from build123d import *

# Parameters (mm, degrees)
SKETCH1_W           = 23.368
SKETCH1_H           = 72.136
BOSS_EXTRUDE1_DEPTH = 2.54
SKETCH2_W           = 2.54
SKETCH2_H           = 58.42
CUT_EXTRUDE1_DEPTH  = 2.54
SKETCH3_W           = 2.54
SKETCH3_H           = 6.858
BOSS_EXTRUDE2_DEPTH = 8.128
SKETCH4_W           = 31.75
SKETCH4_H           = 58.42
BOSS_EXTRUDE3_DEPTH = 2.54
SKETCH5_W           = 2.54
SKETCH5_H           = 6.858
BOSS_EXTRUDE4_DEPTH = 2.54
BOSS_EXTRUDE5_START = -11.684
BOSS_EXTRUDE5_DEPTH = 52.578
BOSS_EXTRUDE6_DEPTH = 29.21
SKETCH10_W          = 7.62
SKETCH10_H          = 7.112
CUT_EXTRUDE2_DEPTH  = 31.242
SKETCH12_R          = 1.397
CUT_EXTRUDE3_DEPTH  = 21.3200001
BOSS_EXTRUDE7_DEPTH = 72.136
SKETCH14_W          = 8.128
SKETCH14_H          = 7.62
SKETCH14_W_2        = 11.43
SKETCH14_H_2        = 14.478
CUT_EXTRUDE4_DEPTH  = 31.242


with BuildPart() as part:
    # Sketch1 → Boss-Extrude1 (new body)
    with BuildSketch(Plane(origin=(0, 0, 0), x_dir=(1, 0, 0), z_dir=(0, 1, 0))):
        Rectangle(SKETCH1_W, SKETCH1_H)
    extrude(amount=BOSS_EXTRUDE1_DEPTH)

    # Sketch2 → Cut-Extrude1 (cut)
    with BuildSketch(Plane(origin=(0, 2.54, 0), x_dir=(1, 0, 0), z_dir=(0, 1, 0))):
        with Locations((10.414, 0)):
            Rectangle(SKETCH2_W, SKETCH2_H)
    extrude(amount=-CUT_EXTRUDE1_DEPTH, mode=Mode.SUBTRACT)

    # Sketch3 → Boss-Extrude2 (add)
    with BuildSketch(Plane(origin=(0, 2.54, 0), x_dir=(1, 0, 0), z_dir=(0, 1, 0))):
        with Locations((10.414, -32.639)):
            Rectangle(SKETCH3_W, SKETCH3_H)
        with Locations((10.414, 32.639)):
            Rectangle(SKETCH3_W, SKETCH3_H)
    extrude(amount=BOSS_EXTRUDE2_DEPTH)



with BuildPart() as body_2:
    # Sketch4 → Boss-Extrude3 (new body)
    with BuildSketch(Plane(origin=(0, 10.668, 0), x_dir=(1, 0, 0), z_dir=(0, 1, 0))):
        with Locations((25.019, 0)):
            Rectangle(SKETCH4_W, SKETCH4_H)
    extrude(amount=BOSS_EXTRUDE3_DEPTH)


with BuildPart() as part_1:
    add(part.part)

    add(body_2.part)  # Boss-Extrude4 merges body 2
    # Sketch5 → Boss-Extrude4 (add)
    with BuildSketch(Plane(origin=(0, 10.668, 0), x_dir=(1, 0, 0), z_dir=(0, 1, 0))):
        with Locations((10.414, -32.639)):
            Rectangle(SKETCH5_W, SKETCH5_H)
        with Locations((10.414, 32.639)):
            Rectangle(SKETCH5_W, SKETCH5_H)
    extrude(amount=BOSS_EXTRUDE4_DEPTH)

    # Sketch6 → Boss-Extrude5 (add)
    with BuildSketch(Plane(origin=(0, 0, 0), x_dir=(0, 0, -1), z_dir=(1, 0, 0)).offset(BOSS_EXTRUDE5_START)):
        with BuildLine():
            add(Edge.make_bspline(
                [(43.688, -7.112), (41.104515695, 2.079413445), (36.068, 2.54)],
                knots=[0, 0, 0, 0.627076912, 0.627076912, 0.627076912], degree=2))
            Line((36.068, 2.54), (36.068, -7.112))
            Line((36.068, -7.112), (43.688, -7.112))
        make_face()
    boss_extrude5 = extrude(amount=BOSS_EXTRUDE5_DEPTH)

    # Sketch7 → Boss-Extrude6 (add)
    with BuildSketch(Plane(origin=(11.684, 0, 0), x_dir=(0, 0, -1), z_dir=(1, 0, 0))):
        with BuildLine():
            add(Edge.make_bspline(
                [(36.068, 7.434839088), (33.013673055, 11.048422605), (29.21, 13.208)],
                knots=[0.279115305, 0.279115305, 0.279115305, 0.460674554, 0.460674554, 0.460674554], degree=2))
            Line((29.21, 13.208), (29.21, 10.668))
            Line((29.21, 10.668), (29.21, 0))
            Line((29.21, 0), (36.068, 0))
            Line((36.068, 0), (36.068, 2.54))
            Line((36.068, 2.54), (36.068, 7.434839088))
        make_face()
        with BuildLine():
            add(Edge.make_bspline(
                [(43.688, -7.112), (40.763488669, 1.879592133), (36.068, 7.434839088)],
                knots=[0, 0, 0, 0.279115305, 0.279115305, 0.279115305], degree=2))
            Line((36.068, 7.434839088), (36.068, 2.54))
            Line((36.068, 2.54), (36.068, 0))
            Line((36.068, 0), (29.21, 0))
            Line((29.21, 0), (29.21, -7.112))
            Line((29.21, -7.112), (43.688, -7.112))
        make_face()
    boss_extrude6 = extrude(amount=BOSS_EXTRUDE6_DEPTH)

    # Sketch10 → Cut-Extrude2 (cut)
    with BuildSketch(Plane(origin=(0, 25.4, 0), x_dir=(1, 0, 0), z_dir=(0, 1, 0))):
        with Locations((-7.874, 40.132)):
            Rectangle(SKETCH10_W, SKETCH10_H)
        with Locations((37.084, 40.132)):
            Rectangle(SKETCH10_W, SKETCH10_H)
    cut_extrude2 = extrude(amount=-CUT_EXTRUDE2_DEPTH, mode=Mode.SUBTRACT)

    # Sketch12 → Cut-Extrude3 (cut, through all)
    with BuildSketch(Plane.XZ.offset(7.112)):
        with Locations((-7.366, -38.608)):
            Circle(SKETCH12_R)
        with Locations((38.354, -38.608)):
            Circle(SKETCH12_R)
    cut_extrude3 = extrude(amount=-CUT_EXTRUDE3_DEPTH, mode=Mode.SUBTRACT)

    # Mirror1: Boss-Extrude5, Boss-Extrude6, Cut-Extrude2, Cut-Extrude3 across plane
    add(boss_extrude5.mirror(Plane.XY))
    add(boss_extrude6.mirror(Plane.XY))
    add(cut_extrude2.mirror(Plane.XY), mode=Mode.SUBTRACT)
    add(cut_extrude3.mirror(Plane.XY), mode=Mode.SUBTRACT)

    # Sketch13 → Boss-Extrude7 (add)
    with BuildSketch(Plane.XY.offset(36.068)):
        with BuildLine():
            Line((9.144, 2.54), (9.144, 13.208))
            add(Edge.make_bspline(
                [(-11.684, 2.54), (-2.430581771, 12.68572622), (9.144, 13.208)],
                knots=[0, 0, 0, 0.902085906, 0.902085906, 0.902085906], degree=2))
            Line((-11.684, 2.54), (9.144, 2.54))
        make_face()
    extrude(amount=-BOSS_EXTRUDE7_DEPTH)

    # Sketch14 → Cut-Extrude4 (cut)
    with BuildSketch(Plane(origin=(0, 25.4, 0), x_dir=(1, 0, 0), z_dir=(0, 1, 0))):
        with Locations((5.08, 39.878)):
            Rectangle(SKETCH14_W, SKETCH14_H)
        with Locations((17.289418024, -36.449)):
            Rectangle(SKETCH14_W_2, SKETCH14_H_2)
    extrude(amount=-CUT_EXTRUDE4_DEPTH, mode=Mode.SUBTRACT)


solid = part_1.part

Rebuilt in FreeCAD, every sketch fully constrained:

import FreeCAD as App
import Part
import Sketcher
Q = App.Units.Quantity

doc = App.newDocument("Part")
params = doc.addObject("Spreadsheet::Sheet", "Params")
for row, (alias, value) in enumerate([
    ("sketch1_width", "0.92 in"),
    ("sketch1_height", "2.84 in"),
    ("pad1_length", "0.1 in"),
    ("sketch2_width", "0.1 in"),
    ("sketch2_height", "2.3 in"),
    ("pocket1_length", "0.1 in"),
    ("sketch3_width", "0.1 in"),
    ("sketch3_height", "0.27 in"),
    ("pad2_length", "0.32 in"),
    ("sketch4_height", "2.3 in"),
    ("sketch4_width", "1.25 in"),
    ("pad3_length", "0.1 in"),
    ("sketch5_width", "0.1 in"),
    ("sketch5_height", "0.27 in"),
    ("pad4_length", "0.1 in"),
    ("pad5_length", "2.07 in"),
    ("pad6_length", "1.15 in"),
    ("sketch8_width", "0.3 in"),
    ("sketch8_height", "0.28 in"),
    ("pocket2_length", "1.23 in"),
    ("sketch9_diameter", "0.11 in"),
    ("pad7_length", "2.84 in"),
    ("sketch11_height", "0.3 in"),
    ("sketch11_width", "0.32 in"),
    ("sketch11_width2", "0.45 in"),
    ("sketch11_height2", "0.57 in"),
    ("pocket4_length", "1.23 in"),
], start=1):
    params.set(f"A{row}", alias)
    params.set(f"B{row}", "=" + value)
    params.setAlias(f"B{row}", alias)

body = doc.addObject("PartDesign::Body", "Body")

sketch1 = body.newObject("Sketcher::SketchObject", "Sketch")
sketch1.AttachmentSupport = (doc.getObject("XZ_Plane"), [""])
sketch1.MapMode = "FlatFace"
sketch1.addGeometry(Part.LineSegment(App.Vector(-12, -36, 0), App.Vector(-12, 36, 0)), False)
sketch1.addGeometry(Part.LineSegment(App.Vector(-12, 36, 0), App.Vector(12, 36, 0)), False)
sketch1.addGeometry(Part.LineSegment(App.Vector(12, 36, 0), App.Vector(12, -36, 0)), False)
sketch1.addGeometry(Part.LineSegment(App.Vector(12, -36, 0), App.Vector(-12, -36, 0)), False)
sketch1.addConstraint(Sketcher.Constraint("Coincident", 0, 2, 1, 1))
sketch1.addConstraint(Sketcher.Constraint("Coincident", 1, 2, 2, 1))
sketch1.addConstraint(Sketcher.Constraint("Coincident", 2, 2, 3, 1))
sketch1.addConstraint(Sketcher.Constraint("Coincident", 3, 2, 0, 1))
sketch1.addConstraint(Sketcher.Constraint("Vertical", 0))
sketch1.addConstraint(Sketcher.Constraint("Horizontal", 1))
sketch1.addConstraint(Sketcher.Constraint("Vertical", 2))
sketch1.addConstraint(Sketcher.Constraint("Horizontal", 3))
sketch1.addConstraint(Sketcher.Constraint("Symmetric", 0, 2, 2, 2, -1, 1))
sketch1.addConstraint(Sketcher.Constraint("DistanceX", 1, 1, 1, 2, Q("0.92 in")))
sketch1.addConstraint(Sketcher.Constraint("DistanceY", 0, 1, 0, 2, Q("2.84 in")))
sketch1.setExpression("Constraints[9]", "Params.sketch1_width")
sketch1.setExpression("Constraints[10]", "Params.sketch1_height")
pad1 = body.newObject("PartDesign::Pad", "Pad")
pad1.Profile = sketch1
pad1.setExpression("Length", "Params.pad1_length")
pad1.Reversed = True

sketch2 = body.newObject("Sketcher::SketchObject", "Sketch001")
sketch2.AttachmentSupport = (doc.getObject("XZ_Plane"), [""])
sketch2.MapMode = "FlatFace"
sketch2.AttachmentOffset = App.Placement(App.Vector(0, 0, -0.1 * 25.4), App.Rotation())
sketch2.addGeometry(Part.LineSegment(App.Vector(9.1, -29.2, 0), App.Vector(9.1, 29.2, 0)), False)
sketch2.addGeometry(Part.LineSegment(App.Vector(9.1, 29.2, 0), App.Vector(11.7, 29.2, 0)), False)
sketch2.addGeometry(Part.LineSegment(App.Vector(11.7, 29.2, 0), App.Vector(11.7, -29.2, 0)), False)
sketch2.addGeometry(Part.LineSegment(App.Vector(11.7, -29.2, 0), App.Vector(9.1, -29.2, 0)), False)
sketch2.addConstraint(Sketcher.Constraint("Coincident", 0, 2, 1, 1))
sketch2.addConstraint(Sketcher.Constraint("Coincident", 1, 2, 2, 1))
sketch2.addConstraint(Sketcher.Constraint("Coincident", 2, 2, 3, 1))
sketch2.addConstraint(Sketcher.Constraint("Coincident", 3, 2, 0, 1))
sketch2.addConstraint(Sketcher.Constraint("Vertical", 0))
sketch2.addConstraint(Sketcher.Constraint("Horizontal", 1))
sketch2.addConstraint(Sketcher.Constraint("Vertical", 2))
sketch2.addConstraint(Sketcher.Constraint("Horizontal", 3))
sketch2.addConstraint(Sketcher.Constraint("DistanceX", 1, 1, 1, 2, Q("0.1 in")))
sketch2.addConstraint(Sketcher.Constraint("DistanceY", 0, 1, 0, 2, Q("2.3 in")))
sketch2.addConstraint(Sketcher.Constraint("DistanceX", -1, 1, 0, 2, Q("0.36 in")))
sketch2.addConstraint(Sketcher.Constraint("DistanceY", -1, 1, 0, 2, Q("1.15 in")))
sketch2.setExpression("Constraints[8]", "Params.sketch2_width")
sketch2.setExpression("Constraints[9]", "Params.sketch2_height")
pocket1 = body.newObject("PartDesign::Pocket", "Pocket")
pocket1.Profile = sketch2
pocket1.setExpression("Length", "Params.pocket1_length")
pocket1.Reversed = True

sketch3 = body.newObject("Sketcher::SketchObject", "Sketch002")
sketch3.AttachmentSupport = (doc.getObject("XZ_Plane"), [""])
sketch3.MapMode = "FlatFace"
sketch3.AttachmentOffset = App.Placement(App.Vector(0, 0, -0.1 * 25.4), App.Rotation())
sketch3.addGeometry(Part.LineSegment(App.Vector(9.1, 29.2, 0), App.Vector(9.1, 36.1, 0)), False)
sketch3.addGeometry(Part.LineSegment(App.Vector(9.1, 36.1, 0), App.Vector(11.7, 36.1, 0)), False)
sketch3.addGeometry(Part.LineSegment(App.Vector(11.7, 36.1, 0), App.Vector(11.7, 29.2, 0)), False)
sketch3.addGeometry(Part.LineSegment(App.Vector(11.7, 29.2, 0), App.Vector(9.1, 29.2, 0)), False)
sketch3.addGeometry(Part.LineSegment(App.Vector(9.1, -36.1, 0), App.Vector(9.1, -29.2, 0)), False)
sketch3.addGeometry(Part.LineSegment(App.Vector(9.1, -29.2, 0), App.Vector(11.7, -29.2, 0)), False)
sketch3.addGeometry(Part.LineSegment(App.Vector(11.7, -29.2, 0), App.Vector(11.7, -36.1, 0)), False)
sketch3.addGeometry(Part.LineSegment(App.Vector(11.7, -36.1, 0), App.Vector(9.1, -36.1, 0)), False)
sketch3.addConstraint(Sketcher.Constraint("Coincident", 0, 2, 1, 1))
sketch3.addConstraint(Sketcher.Constraint("Coincident", 1, 2, 2, 1))
sketch3.addConstraint(Sketcher.Constraint("Coincident", 2, 2, 3, 1))
sketch3.addConstraint(Sketcher.Constraint("Coincident", 3, 2, 0, 1))
sketch3.addConstraint(Sketcher.Constraint("Coincident", 4, 2, 5, 1))
sketch3.addConstraint(Sketcher.Constraint("Coincident", 5, 2, 6, 1))
sketch3.addConstraint(Sketcher.Constraint("Coincident", 6, 2, 7, 1))
sketch3.addConstraint(Sketcher.Constraint("Coincident", 7, 2, 4, 1))
sketch3.addConstraint(Sketcher.Constraint("Vertical", 0))
sketch3.addConstraint(Sketcher.Constraint("Horizontal", 1))
sketch3.addConstraint(Sketcher.Constraint("Vertical", 2))
sketch3.addConstraint(Sketcher.Constraint("Horizontal", 3))
sketch3.addConstraint(Sketcher.Constraint("Vertical", 4))
sketch3.addConstraint(Sketcher.Constraint("Horizontal", 5))
sketch3.addConstraint(Sketcher.Constraint("Vertical", 6))
sketch3.addConstraint(Sketcher.Constraint("Horizontal", 7))
sketch3.addConstraint(Sketcher.Constraint("Symmetric", 3, 2, 4, 2, -1))
sketch3.addConstraint(Sketcher.Constraint("Symmetric", 1, 2, 6, 2, -1))
sketch3.addConstraint(Sketcher.Constraint("DistanceX", 1, 1, 1, 2, Q("0.1 in")))
sketch3.addConstraint(Sketcher.Constraint("DistanceY", 0, 1, 0, 2, Q("0.27 in")))
sketch3.addConstraint(Sketcher.Constraint("DistanceY", 4, 2, 3, 2, Q("2.3 in")))
sketch3.addConstraint(Sketcher.Constraint("DistanceX", -1, 1, 0, 2, Q("0.36 in")))
sketch3.setExpression("Constraints[18]", "Params.sketch3_width")
sketch3.setExpression("Constraints[19]", "Params.sketch3_height")
pad2 = body.newObject("PartDesign::Pad", "Pad001")
pad2.Profile = sketch3
pad2.setExpression("Length", "Params.pad2_length")
pad2.Reversed = True
body2 = doc.addObject("PartDesign::Body", "Body001")

sketch4 = body2.newObject("Sketcher::SketchObject", "Sketch003")
sketch4.AttachmentSupport = (doc.getObject("XZ_Plane001"), [""])
sketch4.MapMode = "FlatFace"
sketch4.AttachmentOffset = App.Placement(App.Vector(0, 0, -0.42 * 25.4), App.Rotation())
sketch4.addGeometry(Part.LineSegment(App.Vector(9, -29, 0), App.Vector(9, 29, 0)), False)
sketch4.addGeometry(Part.LineSegment(App.Vector(9, 29, 0), App.Vector(41, 29, 0)), False)
sketch4.addGeometry(Part.LineSegment(App.Vector(41, 29, 0), App.Vector(41, -29, 0)), False)
sketch4.addGeometry(Part.LineSegment(App.Vector(41, -29, 0), App.Vector(9, -29, 0)), False)
sketch4.addConstraint(Sketcher.Constraint("Coincident", 0, 2, 1, 1))
sketch4.addConstraint(Sketcher.Constraint("Coincident", 1, 2, 2, 1))
sketch4.addConstraint(Sketcher.Constraint("Coincident", 2, 2, 3, 1))
sketch4.addConstraint(Sketcher.Constraint("Coincident", 3, 2, 0, 1))
sketch4.addConstraint(Sketcher.Constraint("Vertical", 0))
sketch4.addConstraint(Sketcher.Constraint("Horizontal", 1))
sketch4.addConstraint(Sketcher.Constraint("Vertical", 2))
sketch4.addConstraint(Sketcher.Constraint("Horizontal", 3))
sketch4.addConstraint(Sketcher.Constraint("DistanceY", 0, 1, 0, 2, Q("2.3 in")))
sketch4.addConstraint(Sketcher.Constraint("DistanceX", 1, 1, 1, 2, Q("1.25 in")))
sketch4.addConstraint(Sketcher.Constraint("DistanceX", -1, 1, 0, 2, Q("0.36 in")))
sketch4.addConstraint(Sketcher.Constraint("DistanceY", -1, 1, 0, 2, Q("1.15 in")))
sketch4.setExpression("Constraints[8]", "Params.sketch4_height")
sketch4.setExpression("Constraints[9]", "Params.sketch4_width")
pad3 = body2.newObject("PartDesign::Pad", "Pad002")
pad3.Profile = sketch4
pad3.setExpression("Length", "Params.pad3_length")
pad3.Reversed = True
body.AllowCompound = True
doc.recompute()

boolean = body.newObject("PartDesign::Boolean", "Boolean")
boolean.Type = "Fuse"
boolean.addObjects([body2])

sketch5 = body.newObject("Sketcher::SketchObject", "Sketch004")
sketch5.AttachmentSupport = (doc.getObject("XZ_Plane"), [""])
sketch5.MapMode = "FlatFace"
sketch5.AttachmentOffset = App.Placement(App.Vector(0, 0, -0.42 * 25.4), App.Rotation())
sketch5.addGeometry(Part.LineSegment(App.Vector(9.1, 29.2, 0), App.Vector(9.1, 36.1, 0)), False)
sketch5.addGeometry(Part.LineSegment(App.Vector(9.1, 36.1, 0), App.Vector(11.7, 36.1, 0)), False)
sketch5.addGeometry(Part.LineSegment(App.Vector(11.7, 36.1, 0), App.Vector(11.7, 29.2, 0)), False)
sketch5.addGeometry(Part.LineSegment(App.Vector(11.7, 29.2, 0), App.Vector(9.1, 29.2, 0)), False)
sketch5.addGeometry(Part.LineSegment(App.Vector(9.1, -36.1, 0), App.Vector(9.1, -29.2, 0)), False)
sketch5.addGeometry(Part.LineSegment(App.Vector(9.1, -29.2, 0), App.Vector(11.7, -29.2, 0)), False)
sketch5.addGeometry(Part.LineSegment(App.Vector(11.7, -29.2, 0), App.Vector(11.7, -36.1, 0)), False)
sketch5.addGeometry(Part.LineSegment(App.Vector(11.7, -36.1, 0), App.Vector(9.1, -36.1, 0)), False)
sketch5.addConstraint(Sketcher.Constraint("Coincident", 0, 2, 1, 1))
sketch5.addConstraint(Sketcher.Constraint("Coincident", 1, 2, 2, 1))
sketch5.addConstraint(Sketcher.Constraint("Coincident", 2, 2, 3, 1))
sketch5.addConstraint(Sketcher.Constraint("Coincident", 3, 2, 0, 1))
sketch5.addConstraint(Sketcher.Constraint("Coincident", 4, 2, 5, 1))
sketch5.addConstraint(Sketcher.Constraint("Coincident", 5, 2, 6, 1))
sketch5.addConstraint(Sketcher.Constraint("Coincident", 6, 2, 7, 1))
sketch5.addConstraint(Sketcher.Constraint("Coincident", 7, 2, 4, 1))
sketch5.addConstraint(Sketcher.Constraint("Vertical", 0))
sketch5.addConstraint(Sketcher.Constraint("Horizontal", 1))
sketch5.addConstraint(Sketcher.Constraint("Vertical", 2))
sketch5.addConstraint(Sketcher.Constraint("Horizontal", 3))
sketch5.addConstraint(Sketcher.Constraint("Vertical", 4))
sketch5.addConstraint(Sketcher.Constraint("Horizontal", 5))
sketch5.addConstraint(Sketcher.Constraint("Vertical", 6))
sketch5.addConstraint(Sketcher.Constraint("Horizontal", 7))
sketch5.addConstraint(Sketcher.Constraint("Symmetric", 3, 2, 4, 2, -1))
sketch5.addConstraint(Sketcher.Constraint("Symmetric", 1, 2, 6, 2, -1))
sketch5.addConstraint(Sketcher.Constraint("DistanceX", 1, 1, 1, 2, Q("0.1 in")))
sketch5.addConstraint(Sketcher.Constraint("DistanceY", 0, 1, 0, 2, Q("0.27 in")))
sketch5.addConstraint(Sketcher.Constraint("DistanceY", 4, 2, 3, 2, Q("2.3 in")))
sketch5.addConstraint(Sketcher.Constraint("DistanceX", -1, 1, 0, 2, Q("0.36 in")))
sketch5.setExpression("Constraints[18]", "Params.sketch5_width")
sketch5.setExpression("Constraints[19]", "Params.sketch5_height")
pad4 = body.newObject("PartDesign::Pad", "Pad003")
pad4.Profile = sketch5
pad4.setExpression("Length", "Params.pad4_length")
pad4.Reversed = True

sketch6 = body.newObject("Sketcher::SketchObject", "Sketch005")
sketch6.AttachmentSupport = (doc.getObject("YZ_Plane"), [""])
sketch6.MapMode = "FlatFace"
sketch6.AttachmentOffset = App.Placement(App.Vector(0, 0, -0.46 * 25.4), App.Rotation())
sketch6.addGeometry(Part.BSplineCurve([App.Vector(-7.112, -43.688, 0), App.Vector(2.079413, -41.104516, 0), App.Vector(2.54, -36.068, 0)], [3, 3], [0, 0.627076912], False, 2, [1, 1, 1], False), False)
sketch6.addGeometry(Part.LineSegment(App.Vector(2.54, -36.068, 0), App.Vector(-7.112, -36.068, 0)), False)
sketch6.addGeometry(Part.LineSegment(App.Vector(-7.112, -36.068, 0), App.Vector(-7.112, -43.688, 0)), False)
sketch6.addConstraint(Sketcher.Constraint("Block", 0))
sketch6.addConstraint(Sketcher.Constraint("Coincident", 0, 2, 1, 1))
sketch6.addConstraint(Sketcher.Constraint("Coincident", 1, 2, 2, 1))
sketch6.addConstraint(Sketcher.Constraint("Coincident", 2, 2, 0, 1))
sketch6.addConstraint(Sketcher.Constraint("Horizontal", 1))
sketch6.addConstraint(Sketcher.Constraint("Vertical", 2))
pad5 = body.newObject("PartDesign::Pad", "Pad004")
pad5.Profile = sketch6
pad5.setExpression("Length", "Params.pad5_length")

sketch7 = body.newObject("Sketcher::SketchObject", "Sketch006")
sketch7.AttachmentSupport = (doc.getObject("YZ_Plane"), [""])
sketch7.MapMode = "FlatFace"
sketch7.AttachmentOffset = App.Placement(App.Vector(0, 0, 0.46 * 25.4), App.Rotation())
sketch7.addGeometry(Part.BSplineCurve([App.Vector(7.434839, -36.068, 0), App.Vector(11.048423, -33.013673, 0), App.Vector(13.208, -29.21, 0)], [3, 3], [0.279115305, 0.460674554], False, 2, [1, 1, 1], False), False)
sketch7.addGeometry(Part.LineSegment(App.Vector(13.208, -29.21, 0), App.Vector(-7.112, -29.21, 0)), False)
sketch7.addGeometry(Part.LineSegment(App.Vector(-7.112, -29.21, 0), App.Vector(-7.112, -43.688, 0)), False)
sketch7.addGeometry(Part.BSplineCurve([App.Vector(-7.112, -43.688, 0), App.Vector(1.879592, -40.763489, 0), App.Vector(7.434839, -36.068, 0)], [3, 3], [0, 0.279115305], False, 2, [1, 1, 1], False), False)
sketch7.addConstraint(Sketcher.Constraint("Block", 0))
sketch7.addConstraint(Sketcher.Constraint("Block", 3))
sketch7.addConstraint(Sketcher.Constraint("Coincident", 0, 2, 1, 1))
sketch7.addConstraint(Sketcher.Constraint("Coincident", 1, 2, 2, 1))
sketch7.addConstraint(Sketcher.Constraint("Coincident", 2, 2, 3, 1))
sketch7.addConstraint(Sketcher.Constraint("Horizontal", 1))
sketch7.addConstraint(Sketcher.Constraint("Vertical", 2))
pad6 = body.newObject("PartDesign::Pad", "Pad005")
pad6.Profile = sketch7
pad6.setExpression("Length", "Params.pad6_length")

sketch8 = body.newObject("Sketcher::SketchObject", "Sketch007")
sketch8.AttachmentSupport = (doc.getObject("XZ_Plane"), [""])
sketch8.MapMode = "FlatFace"
sketch8.AttachmentOffset = App.Placement(App.Vector(0, 0, -1 * 25.4), App.Rotation())
sketch8.addGeometry(Part.LineSegment(App.Vector(-12, -44, 0), App.Vector(-12, -37, 0)), False)
sketch8.addGeometry(Part.LineSegment(App.Vector(-12, -37, 0), App.Vector(-4, -37, 0)), False)
sketch8.addGeometry(Part.LineSegment(App.Vector(-4, -37, 0), App.Vector(-4, -44, 0)), False)
sketch8.addGeometry(Part.LineSegment(App.Vector(-4, -44, 0), App.Vector(-12, -44, 0)), False)
sketch8.addGeometry(Part.LineSegment(App.Vector(33, -44, 0), App.Vector(33, -37, 0)), False)
sketch8.addGeometry(Part.LineSegment(App.Vector(33, -37, 0), App.Vector(41, -37, 0)), False)
sketch8.addGeometry(Part.LineSegment(App.Vector(41, -37, 0), App.Vector(41, -44, 0)), False)
sketch8.addGeometry(Part.LineSegment(App.Vector(41, -44, 0), App.Vector(33, -44, 0)), False)
sketch8.addConstraint(Sketcher.Constraint("Coincident", 0, 2, 1, 1))
sketch8.addConstraint(Sketcher.Constraint("Coincident", 1, 2, 2, 1))
sketch8.addConstraint(Sketcher.Constraint("Coincident", 2, 2, 3, 1))
sketch8.addConstraint(Sketcher.Constraint("Coincident", 3, 2, 0, 1))
sketch8.addConstraint(Sketcher.Constraint("Coincident", 4, 2, 5, 1))
sketch8.addConstraint(Sketcher.Constraint("Coincident", 5, 2, 6, 1))
sketch8.addConstraint(Sketcher.Constraint("Coincident", 6, 2, 7, 1))
sketch8.addConstraint(Sketcher.Constraint("Coincident", 7, 2, 4, 1))
sketch8.addConstraint(Sketcher.Constraint("Vertical", 0))
sketch8.addConstraint(Sketcher.Constraint("Horizontal", 1))
sketch8.addConstraint(Sketcher.Constraint("Vertical", 2))
sketch8.addConstraint(Sketcher.Constraint("Horizontal", 3))
sketch8.addConstraint(Sketcher.Constraint("Vertical", 4))
sketch8.addConstraint(Sketcher.Constraint("Horizontal", 5))
sketch8.addConstraint(Sketcher.Constraint("Vertical", 6))
sketch8.addConstraint(Sketcher.Constraint("Horizontal", 7))
sketch8.addConstraint(Sketcher.Constraint("Horizontal", 1, 2, 4, 2))
sketch8.addConstraint(Sketcher.Constraint("Horizontal", 3, 2, 6, 2))
sketch8.addConstraint(Sketcher.Constraint("Equal", 3, 5))
sketch8.addConstraint(Sketcher.Constraint("DistanceX", 1, 1, 1, 2, Q("0.3 in")))
sketch8.addConstraint(Sketcher.Constraint("DistanceY", 0, 1, 0, 2, Q("0.28 in")))
sketch8.addConstraint(Sketcher.Constraint("DistanceX", 0, 2, -1, 1, Q("0.46 in")))
sketch8.addConstraint(Sketcher.Constraint("DistanceY", 0, 2, -1, 1, Q("1.44 in")))
sketch8.addConstraint(Sketcher.Constraint("DistanceX", -1, 1, 4, 2, Q("1.31 in")))
sketch8.setExpression("Constraints[19]", "Params.sketch8_width")
sketch8.setExpression("Constraints[20]", "Params.sketch8_height")
pocket2 = body.newObject("PartDesign::Pocket", "Pocket001")
pocket2.Profile = sketch8
pocket2.setExpression("Length", "Params.pocket2_length")
pocket2.Reversed = True

sketch9 = body.newObject("Sketcher::SketchObject", "Sketch008")
sketch9.AttachmentSupport = (doc.getObject("XZ_Plane"), [""])
sketch9.MapMode = "FlatFace"
sketch9.AttachmentOffset = App.Placement(App.Vector(0, 0, 0.28 * 25.4), App.Rotation())
sketch9.addGeometry(Part.Circle(App.Vector(-7.4, -38.6, 0), App.Vector(0, 0, 1), 1.4), False)
sketch9.addGeometry(Part.Circle(App.Vector(38.4, -38.6, 0), App.Vector(0, 0, 1), 1.4), False)
sketch9.addConstraint(Sketcher.Constraint("Equal", 0, 1))
sketch9.addConstraint(Sketcher.Constraint("Horizontal", 0, 3, 1, 3))
sketch9.addConstraint(Sketcher.Constraint("Diameter", 0, Q("0.11 in")))
sketch9.addConstraint(Sketcher.Constraint("DistanceX", 0, 3, 1, 3, Q("1.8 in")))
sketch9.addConstraint(Sketcher.Constraint("DistanceX", 0, 3, -1, 1, Q("0.29 in")))
sketch9.addConstraint(Sketcher.Constraint("DistanceY", 0, 3, -1, 1, Q("1.52 in")))
sketch9.setExpression("Constraints[2]", "Params.sketch9_diameter")
pocket3 = body.newObject("PartDesign::Pocket", "Pocket002")
pocket3.Profile = sketch9
pocket3.Type = "ThroughAll"
doc.recompute()

mirrored = body.newObject("PartDesign::Mirrored", "Mirrored")
mirrored.Originals = [pad5, pad6, pocket2, pocket3]
mirrored.MirrorPlane = (doc.getObject("XY_Plane"), [""])
body.Tip = mirrored

sketch10 = body.newObject("Sketcher::SketchObject", "Sketch009")
sketch10.AttachmentSupport = (doc.getObject("XY_Plane"), [""])
sketch10.MapMode = "FlatFace"
sketch10.AttachmentOffset = App.Placement(App.Vector(0, 0, 1.42 * 25.4), App.Rotation())
sketch10.addGeometry(Part.LineSegment(App.Vector(9.144, 2.54, 0), App.Vector(9.144, 13.208, 0)), False)
sketch10.addGeometry(Part.BSplineCurve([App.Vector(-11.684, 2.54, 0), App.Vector(-2.430582, 12.685726, 0), App.Vector(9.144, 13.208, 0)], [3, 3], [0, 0.902085906], False, 2, [1, 1, 1], False), False)
sketch10.addGeometry(Part.LineSegment(App.Vector(-11.684, 2.54, 0), App.Vector(9.144, 2.54, 0)), False)
sketch10.addConstraint(Sketcher.Constraint("Block", 1))
sketch10.addConstraint(Sketcher.Constraint("Coincident", 0, 2, 1, 2))
sketch10.addConstraint(Sketcher.Constraint("Coincident", 1, 1, 2, 1))
sketch10.addConstraint(Sketcher.Constraint("Coincident", 2, 2, 0, 1))
sketch10.addConstraint(Sketcher.Constraint("Vertical", 0))
sketch10.addConstraint(Sketcher.Constraint("Horizontal", 2))
pad7 = body.newObject("PartDesign::Pad", "Pad006")
pad7.Profile = sketch10
pad7.setExpression("Length", "Params.pad7_length")
pad7.Reversed = True

sketch11 = body.newObject("Sketcher::SketchObject", "Sketch010")
sketch11.AttachmentSupport = (doc.getObject("XZ_Plane"), [""])
sketch11.MapMode = "FlatFace"
sketch11.AttachmentOffset = App.Placement(App.Vector(0, 0, -1 * 25.4), App.Rotation())
sketch11.addGeometry(Part.LineSegment(App.Vector(1, -44, 0), App.Vector(1, -36, 0)), False)
sketch11.addGeometry(Part.LineSegment(App.Vector(1, -36, 0), App.Vector(9, -36, 0)), False)
sketch11.addGeometry(Part.LineSegment(App.Vector(9, -36, 0), App.Vector(9, -44, 0)), False)
sketch11.addGeometry(Part.LineSegment(App.Vector(9, -44, 0), App.Vector(1, -44, 0)), False)
sketch11.addGeometry(Part.LineSegment(App.Vector(12, 29, 0), App.Vector(12, 44, 0)), False)
sketch11.addGeometry(Part.LineSegment(App.Vector(12, 44, 0), App.Vector(23, 44, 0)), False)
sketch11.addGeometry(Part.LineSegment(App.Vector(23, 44, 0), App.Vector(23, 29, 0)), False)
sketch11.addGeometry(Part.LineSegment(App.Vector(23, 29, 0), App.Vector(12, 29, 0)), False)
sketch11.addConstraint(Sketcher.Constraint("Coincident", 0, 2, 1, 1))
sketch11.addConstraint(Sketcher.Constraint("Coincident", 1, 2, 2, 1))
sketch11.addConstraint(Sketcher.Constraint("Coincident", 2, 2, 3, 1))
sketch11.addConstraint(Sketcher.Constraint("Coincident", 3, 2, 0, 1))
sketch11.addConstraint(Sketcher.Constraint("Coincident", 4, 2, 5, 1))
sketch11.addConstraint(Sketcher.Constraint("Coincident", 5, 2, 6, 1))
sketch11.addConstraint(Sketcher.Constraint("Coincident", 6, 2, 7, 1))
sketch11.addConstraint(Sketcher.Constraint("Coincident", 7, 2, 4, 1))
sketch11.addConstraint(Sketcher.Constraint("Vertical", 0))
sketch11.addConstraint(Sketcher.Constraint("Horizontal", 1))
sketch11.addConstraint(Sketcher.Constraint("Vertical", 2))
sketch11.addConstraint(Sketcher.Constraint("Horizontal", 3))
sketch11.addConstraint(Sketcher.Constraint("Vertical", 4))
sketch11.addConstraint(Sketcher.Constraint("Horizontal", 5))
sketch11.addConstraint(Sketcher.Constraint("Vertical", 6))
sketch11.addConstraint(Sketcher.Constraint("Horizontal", 7))
sketch11.addConstraint(Sketcher.Constraint("DistanceY", 0, 1, 0, 2, Q("0.3 in")))
sketch11.addConstraint(Sketcher.Constraint("DistanceX", 1, 1, 1, 2, Q("0.32 in")))
sketch11.addConstraint(Sketcher.Constraint("DistanceX", 5, 1, 5, 2, Q("0.45 in")))
sketch11.addConstraint(Sketcher.Constraint("DistanceY", 4, 1, 4, 2, Q("0.57 in")))
sketch11.addConstraint(Sketcher.Constraint("DistanceX", -1, 1, 0, 2, Q("0.04 in")))
sketch11.addConstraint(Sketcher.Constraint("DistanceY", 0, 2, -1, 1, Q("1.42 in")))
sketch11.addConstraint(Sketcher.Constraint("DistanceY", -1, 1, 4, 2, Q("1.72 in")))
sketch11.addConstraint(Sketcher.Constraint("DistanceX", -1, 1, 4, 2, 11.574418))
sketch11.setExpression("Constraints[16]", "Params.sketch11_height")
sketch11.setExpression("Constraints[17]", "Params.sketch11_width")
sketch11.setExpression("Constraints[18]", "Params.sketch11_width2")
sketch11.setExpression("Constraints[19]", "Params.sketch11_height2")
pocket4 = body.newObject("PartDesign::Pocket", "Pocket003")
pocket4.Profile = sketch11
pocket4.setExpression("Length", "Params.pocket4_length")
pocket4.Reversed = True

doc.recompute()
